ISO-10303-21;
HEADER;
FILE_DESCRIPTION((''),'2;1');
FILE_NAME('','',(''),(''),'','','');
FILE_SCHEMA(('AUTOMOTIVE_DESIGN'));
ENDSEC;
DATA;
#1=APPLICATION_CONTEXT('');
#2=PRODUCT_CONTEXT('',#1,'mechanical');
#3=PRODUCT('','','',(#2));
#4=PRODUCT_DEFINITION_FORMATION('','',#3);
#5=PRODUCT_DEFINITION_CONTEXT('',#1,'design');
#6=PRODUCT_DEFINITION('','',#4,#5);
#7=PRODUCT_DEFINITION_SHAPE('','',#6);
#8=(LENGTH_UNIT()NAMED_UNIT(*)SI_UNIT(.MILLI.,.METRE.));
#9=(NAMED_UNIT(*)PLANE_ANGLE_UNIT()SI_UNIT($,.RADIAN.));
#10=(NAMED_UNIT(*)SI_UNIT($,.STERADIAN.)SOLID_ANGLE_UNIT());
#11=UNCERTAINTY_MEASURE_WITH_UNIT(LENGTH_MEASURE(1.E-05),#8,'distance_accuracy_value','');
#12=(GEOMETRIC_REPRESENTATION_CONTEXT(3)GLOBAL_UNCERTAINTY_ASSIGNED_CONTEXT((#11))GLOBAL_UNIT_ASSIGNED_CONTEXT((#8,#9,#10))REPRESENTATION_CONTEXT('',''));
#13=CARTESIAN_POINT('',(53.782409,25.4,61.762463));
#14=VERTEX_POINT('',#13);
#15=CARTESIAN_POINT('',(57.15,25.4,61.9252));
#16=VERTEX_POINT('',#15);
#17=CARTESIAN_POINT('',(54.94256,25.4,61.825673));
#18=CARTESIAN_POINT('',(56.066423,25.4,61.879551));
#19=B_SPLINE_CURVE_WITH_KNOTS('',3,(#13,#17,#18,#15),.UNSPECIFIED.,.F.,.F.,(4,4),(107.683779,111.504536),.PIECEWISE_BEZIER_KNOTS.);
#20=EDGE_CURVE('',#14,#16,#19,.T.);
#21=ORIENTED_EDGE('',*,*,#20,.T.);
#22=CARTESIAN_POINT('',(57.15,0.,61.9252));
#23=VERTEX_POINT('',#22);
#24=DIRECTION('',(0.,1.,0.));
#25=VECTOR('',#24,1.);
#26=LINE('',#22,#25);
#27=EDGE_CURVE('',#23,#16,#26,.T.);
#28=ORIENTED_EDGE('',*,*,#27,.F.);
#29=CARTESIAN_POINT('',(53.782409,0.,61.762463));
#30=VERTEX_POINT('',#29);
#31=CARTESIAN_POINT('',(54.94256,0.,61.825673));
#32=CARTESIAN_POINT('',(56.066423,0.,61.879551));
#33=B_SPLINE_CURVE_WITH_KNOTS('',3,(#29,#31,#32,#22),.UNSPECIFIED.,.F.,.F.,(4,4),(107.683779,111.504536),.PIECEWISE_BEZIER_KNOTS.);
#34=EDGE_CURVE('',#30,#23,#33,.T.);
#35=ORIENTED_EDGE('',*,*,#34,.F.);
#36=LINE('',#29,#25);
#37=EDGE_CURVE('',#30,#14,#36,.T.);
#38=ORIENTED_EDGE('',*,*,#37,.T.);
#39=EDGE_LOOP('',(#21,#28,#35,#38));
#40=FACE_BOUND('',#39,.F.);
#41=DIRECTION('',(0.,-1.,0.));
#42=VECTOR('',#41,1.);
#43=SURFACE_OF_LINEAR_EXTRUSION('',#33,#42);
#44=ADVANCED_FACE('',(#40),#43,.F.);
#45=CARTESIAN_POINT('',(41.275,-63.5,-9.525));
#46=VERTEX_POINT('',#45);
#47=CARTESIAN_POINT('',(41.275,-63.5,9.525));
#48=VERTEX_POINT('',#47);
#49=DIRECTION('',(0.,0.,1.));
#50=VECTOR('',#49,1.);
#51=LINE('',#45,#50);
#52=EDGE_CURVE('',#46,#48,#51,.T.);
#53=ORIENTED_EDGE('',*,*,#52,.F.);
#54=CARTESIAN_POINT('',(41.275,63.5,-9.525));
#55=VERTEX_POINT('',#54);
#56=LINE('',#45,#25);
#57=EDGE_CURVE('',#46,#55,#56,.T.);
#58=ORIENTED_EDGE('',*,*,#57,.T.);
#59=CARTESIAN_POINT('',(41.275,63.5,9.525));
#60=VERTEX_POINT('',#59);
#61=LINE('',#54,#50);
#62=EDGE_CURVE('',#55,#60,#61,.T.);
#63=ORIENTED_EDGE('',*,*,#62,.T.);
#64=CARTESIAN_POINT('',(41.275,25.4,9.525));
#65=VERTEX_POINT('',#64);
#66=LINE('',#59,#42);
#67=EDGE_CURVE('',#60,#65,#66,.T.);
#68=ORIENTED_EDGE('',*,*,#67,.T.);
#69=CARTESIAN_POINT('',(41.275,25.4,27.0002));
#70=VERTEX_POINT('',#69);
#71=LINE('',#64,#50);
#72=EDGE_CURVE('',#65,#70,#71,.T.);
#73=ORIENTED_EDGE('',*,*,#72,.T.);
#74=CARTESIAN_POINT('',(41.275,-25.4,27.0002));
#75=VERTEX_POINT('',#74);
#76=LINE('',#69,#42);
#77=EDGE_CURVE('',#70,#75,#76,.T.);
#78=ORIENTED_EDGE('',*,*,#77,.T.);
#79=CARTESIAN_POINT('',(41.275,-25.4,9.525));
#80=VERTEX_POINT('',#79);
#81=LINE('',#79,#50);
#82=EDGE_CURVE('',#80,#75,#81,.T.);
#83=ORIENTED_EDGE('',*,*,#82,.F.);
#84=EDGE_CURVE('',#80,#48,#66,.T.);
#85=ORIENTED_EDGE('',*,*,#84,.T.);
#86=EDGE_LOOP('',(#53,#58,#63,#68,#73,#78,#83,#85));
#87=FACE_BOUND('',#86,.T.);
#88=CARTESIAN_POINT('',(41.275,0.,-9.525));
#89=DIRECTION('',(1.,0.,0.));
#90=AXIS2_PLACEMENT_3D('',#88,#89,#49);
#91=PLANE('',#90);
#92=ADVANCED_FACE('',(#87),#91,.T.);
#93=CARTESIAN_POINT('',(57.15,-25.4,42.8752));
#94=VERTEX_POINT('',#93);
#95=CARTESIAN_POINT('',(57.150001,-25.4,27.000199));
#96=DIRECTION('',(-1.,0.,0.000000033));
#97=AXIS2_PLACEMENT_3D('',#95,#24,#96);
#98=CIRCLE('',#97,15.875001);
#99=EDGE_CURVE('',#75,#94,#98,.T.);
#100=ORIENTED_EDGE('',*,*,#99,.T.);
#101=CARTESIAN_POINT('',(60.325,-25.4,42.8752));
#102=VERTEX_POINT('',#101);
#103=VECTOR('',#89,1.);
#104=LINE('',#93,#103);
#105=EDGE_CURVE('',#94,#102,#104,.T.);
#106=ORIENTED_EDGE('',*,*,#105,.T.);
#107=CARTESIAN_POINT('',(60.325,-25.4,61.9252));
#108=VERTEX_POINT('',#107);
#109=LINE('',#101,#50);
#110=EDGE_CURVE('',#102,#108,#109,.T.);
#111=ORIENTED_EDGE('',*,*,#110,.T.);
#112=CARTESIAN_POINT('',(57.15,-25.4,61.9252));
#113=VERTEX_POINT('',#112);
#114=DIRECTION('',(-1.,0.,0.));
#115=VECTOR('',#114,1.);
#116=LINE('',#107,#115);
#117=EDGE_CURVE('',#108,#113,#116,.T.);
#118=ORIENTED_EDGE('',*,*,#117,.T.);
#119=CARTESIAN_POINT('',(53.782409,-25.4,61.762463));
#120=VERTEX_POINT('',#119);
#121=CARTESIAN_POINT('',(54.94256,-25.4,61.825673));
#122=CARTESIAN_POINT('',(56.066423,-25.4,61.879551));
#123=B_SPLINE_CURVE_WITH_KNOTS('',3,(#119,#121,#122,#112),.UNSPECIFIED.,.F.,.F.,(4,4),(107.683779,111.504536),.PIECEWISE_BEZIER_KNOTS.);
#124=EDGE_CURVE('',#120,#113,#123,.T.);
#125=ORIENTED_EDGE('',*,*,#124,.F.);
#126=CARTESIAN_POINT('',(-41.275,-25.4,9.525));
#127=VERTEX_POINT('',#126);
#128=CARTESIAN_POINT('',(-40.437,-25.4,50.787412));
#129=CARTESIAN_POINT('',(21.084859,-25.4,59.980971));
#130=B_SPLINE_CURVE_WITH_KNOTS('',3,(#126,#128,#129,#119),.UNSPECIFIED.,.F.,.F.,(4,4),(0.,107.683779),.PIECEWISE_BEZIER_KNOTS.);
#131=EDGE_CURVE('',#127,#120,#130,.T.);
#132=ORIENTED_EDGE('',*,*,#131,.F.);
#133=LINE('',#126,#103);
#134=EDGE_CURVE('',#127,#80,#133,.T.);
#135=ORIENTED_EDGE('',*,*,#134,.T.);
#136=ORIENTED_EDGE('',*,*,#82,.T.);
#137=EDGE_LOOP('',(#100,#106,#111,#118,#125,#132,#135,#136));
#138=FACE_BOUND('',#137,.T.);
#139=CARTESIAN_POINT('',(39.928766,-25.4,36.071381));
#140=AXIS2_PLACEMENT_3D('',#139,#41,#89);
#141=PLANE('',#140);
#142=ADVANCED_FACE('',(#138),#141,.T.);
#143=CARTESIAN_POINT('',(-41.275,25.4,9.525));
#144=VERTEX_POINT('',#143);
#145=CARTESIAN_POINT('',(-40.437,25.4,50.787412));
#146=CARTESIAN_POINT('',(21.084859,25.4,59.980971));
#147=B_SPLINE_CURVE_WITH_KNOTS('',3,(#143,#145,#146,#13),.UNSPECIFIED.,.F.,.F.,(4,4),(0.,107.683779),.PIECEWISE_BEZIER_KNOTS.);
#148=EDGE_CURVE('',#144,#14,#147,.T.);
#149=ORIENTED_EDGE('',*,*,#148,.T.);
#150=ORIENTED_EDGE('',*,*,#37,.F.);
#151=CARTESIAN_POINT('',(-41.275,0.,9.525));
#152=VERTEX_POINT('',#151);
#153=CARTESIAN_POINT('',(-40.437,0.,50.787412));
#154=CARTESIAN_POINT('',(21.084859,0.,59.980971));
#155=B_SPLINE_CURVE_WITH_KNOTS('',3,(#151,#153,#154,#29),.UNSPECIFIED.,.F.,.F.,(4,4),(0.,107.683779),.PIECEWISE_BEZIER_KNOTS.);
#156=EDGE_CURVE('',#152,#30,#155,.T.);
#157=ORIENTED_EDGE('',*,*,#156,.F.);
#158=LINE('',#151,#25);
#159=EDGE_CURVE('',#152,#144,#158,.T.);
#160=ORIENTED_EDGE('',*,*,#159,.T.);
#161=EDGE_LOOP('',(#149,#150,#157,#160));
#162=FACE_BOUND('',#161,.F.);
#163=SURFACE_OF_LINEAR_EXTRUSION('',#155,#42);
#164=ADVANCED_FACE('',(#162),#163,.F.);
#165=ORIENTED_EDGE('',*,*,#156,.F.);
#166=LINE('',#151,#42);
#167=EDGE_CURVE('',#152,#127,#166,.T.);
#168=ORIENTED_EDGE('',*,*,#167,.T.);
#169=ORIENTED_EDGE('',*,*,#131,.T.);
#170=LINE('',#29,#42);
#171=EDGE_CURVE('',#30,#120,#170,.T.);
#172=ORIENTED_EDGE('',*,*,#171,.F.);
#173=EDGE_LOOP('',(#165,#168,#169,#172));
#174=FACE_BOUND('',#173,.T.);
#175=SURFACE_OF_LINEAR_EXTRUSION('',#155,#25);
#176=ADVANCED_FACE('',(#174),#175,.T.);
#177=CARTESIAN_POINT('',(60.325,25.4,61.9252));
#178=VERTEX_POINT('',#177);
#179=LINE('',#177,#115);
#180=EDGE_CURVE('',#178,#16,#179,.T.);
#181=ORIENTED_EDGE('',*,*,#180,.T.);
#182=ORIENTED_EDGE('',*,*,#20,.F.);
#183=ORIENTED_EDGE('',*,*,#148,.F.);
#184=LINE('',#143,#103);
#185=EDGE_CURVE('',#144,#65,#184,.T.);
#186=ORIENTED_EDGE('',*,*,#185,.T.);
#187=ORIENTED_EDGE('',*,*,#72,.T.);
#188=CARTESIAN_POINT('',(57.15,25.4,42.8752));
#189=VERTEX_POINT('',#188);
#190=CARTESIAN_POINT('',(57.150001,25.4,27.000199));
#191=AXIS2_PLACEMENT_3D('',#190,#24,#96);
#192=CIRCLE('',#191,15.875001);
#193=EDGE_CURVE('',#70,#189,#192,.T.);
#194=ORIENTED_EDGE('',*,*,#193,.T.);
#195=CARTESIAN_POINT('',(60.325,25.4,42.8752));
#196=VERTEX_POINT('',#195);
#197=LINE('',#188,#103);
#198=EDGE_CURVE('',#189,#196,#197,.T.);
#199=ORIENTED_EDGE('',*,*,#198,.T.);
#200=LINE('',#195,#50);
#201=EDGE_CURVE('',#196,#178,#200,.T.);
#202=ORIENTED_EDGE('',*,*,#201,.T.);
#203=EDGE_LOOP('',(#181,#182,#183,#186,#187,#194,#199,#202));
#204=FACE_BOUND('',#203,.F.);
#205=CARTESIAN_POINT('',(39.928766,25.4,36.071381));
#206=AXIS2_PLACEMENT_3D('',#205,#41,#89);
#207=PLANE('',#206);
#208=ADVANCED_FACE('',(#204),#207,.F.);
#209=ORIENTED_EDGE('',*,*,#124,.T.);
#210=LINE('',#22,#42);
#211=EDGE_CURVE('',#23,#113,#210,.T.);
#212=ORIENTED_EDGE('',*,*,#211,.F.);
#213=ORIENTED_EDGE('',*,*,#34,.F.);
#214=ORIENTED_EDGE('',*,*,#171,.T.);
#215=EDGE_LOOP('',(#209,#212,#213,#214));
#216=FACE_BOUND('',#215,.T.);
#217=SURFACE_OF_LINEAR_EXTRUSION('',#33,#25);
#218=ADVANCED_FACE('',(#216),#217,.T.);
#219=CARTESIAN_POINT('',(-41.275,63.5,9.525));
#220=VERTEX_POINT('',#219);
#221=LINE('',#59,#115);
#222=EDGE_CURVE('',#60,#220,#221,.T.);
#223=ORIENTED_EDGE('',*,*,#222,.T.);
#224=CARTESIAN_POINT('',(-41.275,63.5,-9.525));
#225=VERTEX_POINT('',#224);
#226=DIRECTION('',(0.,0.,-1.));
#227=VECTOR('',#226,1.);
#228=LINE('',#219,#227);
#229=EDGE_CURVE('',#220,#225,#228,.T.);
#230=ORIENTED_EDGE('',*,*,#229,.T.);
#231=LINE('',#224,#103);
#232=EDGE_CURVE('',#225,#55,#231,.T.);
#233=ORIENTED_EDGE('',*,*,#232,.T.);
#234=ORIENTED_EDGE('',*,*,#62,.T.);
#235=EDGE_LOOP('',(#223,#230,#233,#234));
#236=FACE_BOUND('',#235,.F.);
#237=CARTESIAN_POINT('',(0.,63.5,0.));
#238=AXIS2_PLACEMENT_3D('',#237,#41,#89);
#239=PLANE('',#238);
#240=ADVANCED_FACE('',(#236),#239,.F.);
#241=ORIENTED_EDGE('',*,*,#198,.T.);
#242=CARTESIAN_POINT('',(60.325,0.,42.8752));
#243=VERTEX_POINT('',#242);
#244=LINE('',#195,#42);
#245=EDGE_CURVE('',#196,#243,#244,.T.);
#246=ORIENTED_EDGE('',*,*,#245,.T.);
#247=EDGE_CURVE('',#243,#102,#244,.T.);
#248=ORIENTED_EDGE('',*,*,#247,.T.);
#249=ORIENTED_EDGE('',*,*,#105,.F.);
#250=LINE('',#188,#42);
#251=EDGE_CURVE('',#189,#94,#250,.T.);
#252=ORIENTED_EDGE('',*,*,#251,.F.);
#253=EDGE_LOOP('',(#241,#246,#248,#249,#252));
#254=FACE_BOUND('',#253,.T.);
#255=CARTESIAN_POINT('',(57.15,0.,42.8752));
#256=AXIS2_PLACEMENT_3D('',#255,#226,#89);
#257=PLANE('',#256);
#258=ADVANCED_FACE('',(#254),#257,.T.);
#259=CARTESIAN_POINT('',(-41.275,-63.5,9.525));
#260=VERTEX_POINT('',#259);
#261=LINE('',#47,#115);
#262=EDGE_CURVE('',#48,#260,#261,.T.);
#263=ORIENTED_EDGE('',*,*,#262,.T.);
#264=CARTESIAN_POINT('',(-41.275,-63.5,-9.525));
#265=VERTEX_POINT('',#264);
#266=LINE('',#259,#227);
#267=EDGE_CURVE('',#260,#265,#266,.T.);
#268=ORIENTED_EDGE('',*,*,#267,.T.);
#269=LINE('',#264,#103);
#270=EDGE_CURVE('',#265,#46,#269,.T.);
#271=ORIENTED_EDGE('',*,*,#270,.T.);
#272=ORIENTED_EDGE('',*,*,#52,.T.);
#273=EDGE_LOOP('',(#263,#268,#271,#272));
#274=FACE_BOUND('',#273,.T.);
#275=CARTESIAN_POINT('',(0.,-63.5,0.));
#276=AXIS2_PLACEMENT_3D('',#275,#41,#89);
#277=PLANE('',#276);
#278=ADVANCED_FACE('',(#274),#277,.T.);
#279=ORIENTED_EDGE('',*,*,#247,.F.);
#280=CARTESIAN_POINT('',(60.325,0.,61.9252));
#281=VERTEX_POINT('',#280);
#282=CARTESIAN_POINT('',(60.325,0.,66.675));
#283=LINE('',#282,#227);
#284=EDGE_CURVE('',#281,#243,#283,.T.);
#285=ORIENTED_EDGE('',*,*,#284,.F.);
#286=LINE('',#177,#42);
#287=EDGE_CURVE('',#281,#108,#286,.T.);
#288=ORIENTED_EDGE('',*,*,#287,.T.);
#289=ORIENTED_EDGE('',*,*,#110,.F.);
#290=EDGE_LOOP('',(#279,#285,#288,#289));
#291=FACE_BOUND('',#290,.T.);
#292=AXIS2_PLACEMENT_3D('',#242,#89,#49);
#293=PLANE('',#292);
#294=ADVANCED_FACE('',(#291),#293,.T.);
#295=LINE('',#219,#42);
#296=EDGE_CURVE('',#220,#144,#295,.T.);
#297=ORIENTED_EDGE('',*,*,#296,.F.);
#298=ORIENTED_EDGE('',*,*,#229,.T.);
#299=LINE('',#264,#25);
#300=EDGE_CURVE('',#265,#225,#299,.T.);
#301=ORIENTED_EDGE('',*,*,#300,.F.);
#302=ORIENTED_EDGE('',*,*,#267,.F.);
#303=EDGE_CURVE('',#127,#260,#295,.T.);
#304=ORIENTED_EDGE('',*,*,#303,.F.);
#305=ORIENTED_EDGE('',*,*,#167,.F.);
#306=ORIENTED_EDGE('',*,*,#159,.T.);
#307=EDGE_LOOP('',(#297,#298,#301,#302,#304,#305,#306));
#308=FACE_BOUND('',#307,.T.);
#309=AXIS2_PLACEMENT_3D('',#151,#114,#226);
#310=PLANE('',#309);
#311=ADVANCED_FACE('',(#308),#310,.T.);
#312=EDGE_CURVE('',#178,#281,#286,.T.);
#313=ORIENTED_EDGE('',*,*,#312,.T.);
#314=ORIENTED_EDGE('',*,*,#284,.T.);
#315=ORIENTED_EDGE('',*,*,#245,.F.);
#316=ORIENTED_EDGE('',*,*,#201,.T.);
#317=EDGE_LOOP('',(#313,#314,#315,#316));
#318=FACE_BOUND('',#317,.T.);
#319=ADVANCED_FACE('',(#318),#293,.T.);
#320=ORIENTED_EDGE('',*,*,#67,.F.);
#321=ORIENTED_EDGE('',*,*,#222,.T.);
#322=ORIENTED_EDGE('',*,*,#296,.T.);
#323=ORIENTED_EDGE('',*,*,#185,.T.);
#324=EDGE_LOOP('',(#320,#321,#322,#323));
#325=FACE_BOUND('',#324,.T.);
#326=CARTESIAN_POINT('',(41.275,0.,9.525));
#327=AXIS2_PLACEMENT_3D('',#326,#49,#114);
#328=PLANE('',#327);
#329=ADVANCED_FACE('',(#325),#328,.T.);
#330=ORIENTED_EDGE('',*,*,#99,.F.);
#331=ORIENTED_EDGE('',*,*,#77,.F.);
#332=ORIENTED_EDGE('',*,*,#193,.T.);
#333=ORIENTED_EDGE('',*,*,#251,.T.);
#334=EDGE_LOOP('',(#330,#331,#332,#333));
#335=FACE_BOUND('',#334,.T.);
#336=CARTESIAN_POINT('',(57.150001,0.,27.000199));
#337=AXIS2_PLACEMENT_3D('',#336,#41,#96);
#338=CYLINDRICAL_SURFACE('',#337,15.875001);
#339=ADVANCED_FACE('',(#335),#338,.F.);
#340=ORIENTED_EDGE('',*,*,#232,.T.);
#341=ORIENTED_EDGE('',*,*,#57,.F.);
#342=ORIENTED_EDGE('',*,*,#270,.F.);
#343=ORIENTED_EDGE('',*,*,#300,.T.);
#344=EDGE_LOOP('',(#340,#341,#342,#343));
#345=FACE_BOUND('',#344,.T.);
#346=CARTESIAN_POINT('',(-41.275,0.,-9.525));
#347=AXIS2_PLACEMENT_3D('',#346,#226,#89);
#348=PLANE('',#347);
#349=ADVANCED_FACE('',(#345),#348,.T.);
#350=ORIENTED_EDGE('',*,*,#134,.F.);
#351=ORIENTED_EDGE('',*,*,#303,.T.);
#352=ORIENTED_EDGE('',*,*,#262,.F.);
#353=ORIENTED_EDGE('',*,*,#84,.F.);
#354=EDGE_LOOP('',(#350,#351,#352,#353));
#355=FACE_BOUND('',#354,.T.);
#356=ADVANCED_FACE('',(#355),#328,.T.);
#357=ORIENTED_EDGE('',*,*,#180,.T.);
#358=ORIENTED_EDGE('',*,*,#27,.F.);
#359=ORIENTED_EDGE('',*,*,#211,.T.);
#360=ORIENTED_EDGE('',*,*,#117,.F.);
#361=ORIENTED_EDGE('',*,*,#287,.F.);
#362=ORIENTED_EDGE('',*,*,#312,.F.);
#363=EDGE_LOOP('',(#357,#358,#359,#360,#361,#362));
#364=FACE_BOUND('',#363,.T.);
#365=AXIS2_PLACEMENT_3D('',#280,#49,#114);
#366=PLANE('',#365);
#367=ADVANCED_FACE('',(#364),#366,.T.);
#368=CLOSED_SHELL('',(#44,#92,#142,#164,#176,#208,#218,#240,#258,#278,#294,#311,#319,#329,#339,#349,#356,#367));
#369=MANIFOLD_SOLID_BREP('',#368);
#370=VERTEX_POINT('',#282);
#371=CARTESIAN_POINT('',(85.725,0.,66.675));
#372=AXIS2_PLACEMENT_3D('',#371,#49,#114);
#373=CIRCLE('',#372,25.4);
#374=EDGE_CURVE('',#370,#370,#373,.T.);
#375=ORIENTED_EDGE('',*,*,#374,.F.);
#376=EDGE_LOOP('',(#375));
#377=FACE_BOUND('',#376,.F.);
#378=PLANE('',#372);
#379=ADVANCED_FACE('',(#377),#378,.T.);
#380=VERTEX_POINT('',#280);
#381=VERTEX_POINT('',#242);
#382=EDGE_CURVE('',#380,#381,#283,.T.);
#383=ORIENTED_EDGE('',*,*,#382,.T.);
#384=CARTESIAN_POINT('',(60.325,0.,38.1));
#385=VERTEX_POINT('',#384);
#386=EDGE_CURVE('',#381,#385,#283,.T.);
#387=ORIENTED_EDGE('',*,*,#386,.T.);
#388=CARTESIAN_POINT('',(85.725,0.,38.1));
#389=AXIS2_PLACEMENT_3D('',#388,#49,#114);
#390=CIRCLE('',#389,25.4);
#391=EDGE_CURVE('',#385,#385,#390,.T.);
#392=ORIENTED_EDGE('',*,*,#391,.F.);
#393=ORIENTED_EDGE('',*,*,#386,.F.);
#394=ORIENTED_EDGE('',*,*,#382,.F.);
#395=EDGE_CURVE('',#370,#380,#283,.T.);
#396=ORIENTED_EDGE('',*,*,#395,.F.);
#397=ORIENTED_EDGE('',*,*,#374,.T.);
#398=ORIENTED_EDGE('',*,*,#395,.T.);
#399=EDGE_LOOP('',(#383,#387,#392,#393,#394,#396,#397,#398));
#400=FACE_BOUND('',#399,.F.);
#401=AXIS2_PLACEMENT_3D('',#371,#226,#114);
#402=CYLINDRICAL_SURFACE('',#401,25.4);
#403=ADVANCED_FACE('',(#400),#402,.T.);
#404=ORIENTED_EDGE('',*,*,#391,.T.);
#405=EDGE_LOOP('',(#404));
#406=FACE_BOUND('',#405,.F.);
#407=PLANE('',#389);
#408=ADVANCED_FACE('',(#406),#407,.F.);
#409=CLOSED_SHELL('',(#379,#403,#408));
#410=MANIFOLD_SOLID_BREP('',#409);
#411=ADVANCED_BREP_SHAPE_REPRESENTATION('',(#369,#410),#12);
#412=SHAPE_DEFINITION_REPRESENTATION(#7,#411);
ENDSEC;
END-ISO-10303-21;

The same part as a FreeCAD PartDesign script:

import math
import FreeCAD as App
import Part
import Sketcher

V = App.Vector
Q = App.Units.Quantity

doc = App.newDocument("Part")
body = doc.addObject("PartDesign::Body", "Body")
body.AllowCompound = True

# Sketch on XZ plane
sketch1 = body.newObject("Sketcher::SketchObject", "Sketch")
sketch1.AttachmentSupport = (doc.getObject("XZ_Plane"), [""])
sketch1.MapMode = "FlatFace"
sketch1.addGeometry(Part.LineSegment(V(41, -10, 0), V(41, 10, 0)), False)
sketch1.addGeometry(Part.LineSegment(V(41, 10, 0), V(-41, 10, 0)), False)
sketch1.addGeometry(Part.LineSegment(V(-41, 10, 0), V(-41, -10, 0)), False)
sketch1.addGeometry(Part.LineSegment(V(-41, -10, 0), V(41, -10, 0)), False)
sketch1.addConstraint(Sketcher.Constraint("Coincident", 0, 2, 1, 1))
sketch1.addConstraint(Sketcher.Constraint("Coincident", 1, 2, 2, 1))
sketch1.addConstraint(Sketcher.Constraint("Coincident", 2, 2, 3, 1))
sketch1.addConstraint(Sketcher.Constraint("Coincident", 3, 2, 0, 1))
sketch1.addConstraint(Sketcher.Constraint("Vertical", 0))
sketch1.addConstraint(Sketcher.Constraint("Horizontal", 1))
sketch1.addConstraint(Sketcher.Constraint("Vertical", 2))
sketch1.addConstraint(Sketcher.Constraint("Horizontal", 3))
sketch1.addConstraint(Sketcher.Constraint("Symmetric", 0, 2, 2, 2, -1, 1))
sketch1.addConstraint(Sketcher.Constraint("DistanceX", 1, 2, 1, 1, Q("3.25 in")))
sketch1.addConstraint(Sketcher.Constraint("DistanceY", 0, 1, 0, 2, Q("0.75 in")))
pad1 = body.newObject("PartDesign::Pad", "Pad")
pad1.Profile = sketch1
pad1.Length = Q("5 in")
pad1.Midplane = True

# Sketch on XZ plane
sketch2 = body.newObject("Sketcher::SketchObject", "Sketch001")
sketch2.AttachmentSupport = (doc.getObject("XZ_Plane"), [""])
sketch2.MapMode = "FlatFace"
sketch2.addGeometry(Part.LineSegment(V(41.275, 9.525, 0), V(41.275, 27.0002, 0)), False)
sketch2.addGeometry(Part.ArcOfCircle(Part.Circle(V(57.150001, 27.000199, 0), V(0, 0, 1), 15.875001), math.radians(90.000002), math.radians(179.999998)), False)
sketch2.addGeometry(Part.LineSegment(V(57.15, 42.8752, 0), V(60.325, 42.8752, 0)), False)
sketch2.addGeometry(Part.LineSegment(V(60.325, 42.8752, 0), V(60.325, 61.9252, 0)), False)
sketch2.addGeometry(Part.LineSegment(V(60.325, 61.9252, 0), V(57.15, 61.9252, 0)), False)
sketch2.addGeometry(Part.BSplineCurve([V(53.782409, 61.762463, 0), V(54.94256, 61.825673, 0), V(56.066423, 61.879551, 0), V(57.15, 61.9252, 0)], [4, 4], [107.683779, 111.504536], False, 3, [1, 1, 1, 1], False), False)
sketch2.addGeometry(Part.BSplineCurve([V(-41.275, 9.525, 0), V(-40.437, 50.787412, 0), V(21.084859, 59.980971, 0), V(53.782409, 61.762463, 0)], [4, 4], [0, 107.683779], False, 3, [1, 1, 1, 1], False), False)
sketch2.addGeometry(Part.LineSegment(V(-41.275, 9.525, 0), V(41.275, 9.525, 0)), False)
sketch2.addConstraint(Sketcher.Constraint("Block", 5))
sketch2.addConstraint(Sketcher.Constraint("Block", 6))
sketch2.addConstraint(Sketcher.Constraint("Tangent", 0, 2, 1, 2))
sketch2.addConstraint(Sketcher.Constraint("Tangent", 1, 1, 2, 1))
sketch2.addConstraint(Sketcher.Constraint("Coincident", 2, 2, 3, 1))
sketch2.addConstraint(Sketcher.Constraint("Coincident", 3, 2, 4, 1))
sketch2.addConstraint(Sketcher.Constraint("Coincident", 4, 2, 5, 2))
sketch2.addConstraint(Sketcher.Constraint("Coincident", 6, 1, 7, 1))
sketch2.addConstraint(Sketcher.Constraint("Coincident", 7, 2, 0, 1))
sketch2.addConstraint(Sketcher.Constraint("Vertical", 0))
sketch2.addConstraint(Sketcher.Constraint("Horizontal", 2))
sketch2.addConstraint(Sketcher.Constraint("Vertical", 3))
sketch2.addConstraint(Sketcher.Constraint("Horizontal", 4))
sketch2.addConstraint(Sketcher.Constraint("Horizontal", 7))
sketch2.addConstraint(Sketcher.Constraint("Vertical", 1, 1, 4, 2))
sketch2.addConstraint(Sketcher.Constraint("Radius", 1, Q("0.625 in")))
sketch2.addConstraint(Sketcher.Constraint("DistanceY", 3, 1, 3, 2, Q("0.75 in")))
sketch2.addConstraint(Sketcher.Constraint("DistanceX", 2, 1, 2, 2, Q("0.125 in")))
pad2 = body.newObject("PartDesign::Pad", "Pad001")
pad2.Profile = sketch2
pad2.Length = Q("2 in")
pad2.Midplane = True

# Sketch on XZ plane
sketch3 = body.newObject("Sketcher::SketchObject", "Sketch002")
sketch3.AttachmentSupport = (doc.getObject("XZ_Plane"), [""])
sketch3.MapMode = "FlatFace"
sketch3.addGeometry(Part.LineSegment(V(60, 38, 0), V(86, 38, 0)), False)
sketch3.addGeometry(Part.LineSegment(V(86, 38, 0), V(86, 67, 0)), False)
sketch3.addGeometry(Part.LineSegment(V(86, 67, 0), V(60, 67, 0)), False)
sketch3.addGeometry(Part.LineSegment(V(60, 67, 0), V(60, 38, 0)), False)
sketch3.addGeometry(Part.LineSegment(V(86, 38, 0), V(86, 67, 0)), True)  # axis
sketch3.addConstraint(Sketcher.Constraint("Coincident", 0, 2, 1, 1))
sketch3.addConstraint(Sketcher.Constraint("Coincident", 1, 2, 2, 1))
sketch3.addConstraint(Sketcher.Constraint("Coincident", 2, 2, 3, 1))
sketch3.addConstraint(Sketcher.Constraint("Coincident", 3, 2, 0, 1))
sketch3.addConstraint(Sketcher.Constraint("Horizontal", 0))
sketch3.addConstraint(Sketcher.Constraint("Vertical", 1))
sketch3.addConstraint(Sketcher.Constraint("Horizontal", 2))
sketch3.addConstraint(Sketcher.Constraint("Vertical", 3))
sketch3.addConstraint(Sketcher.Constraint("Vertical", 4))
sketch3.addConstraint(Sketcher.Constraint("Coincident", 4, 1, 0, 2))
sketch3.addConstraint(Sketcher.Constraint("Horizontal", 2, 2, 4, 2))
sketch3.addConstraint(Sketcher.Constraint("DistanceX", 0, 1, 0, 2, Q("1 in")))
sketch3.addConstraint(Sketcher.Constraint("DistanceY", -1, 1, 0, 2, Q("1.5 in")))
sketch3.addConstraint(Sketcher.Constraint("DistanceY", 1, 1, 1, 2, Q("1.125 in")))
sketch3.addConstraint(Sketcher.Constraint("DistanceX", -1, 1, 0, 2, Q("3.375 in")))
revolution = body.newObject("PartDesign::Revolution", "Revolution")
revolution.Profile = sketch3
revolution.ReferenceAxis = (sketch3, ["Axis0"])
revolution.Angle = 360

doc.recompute()
